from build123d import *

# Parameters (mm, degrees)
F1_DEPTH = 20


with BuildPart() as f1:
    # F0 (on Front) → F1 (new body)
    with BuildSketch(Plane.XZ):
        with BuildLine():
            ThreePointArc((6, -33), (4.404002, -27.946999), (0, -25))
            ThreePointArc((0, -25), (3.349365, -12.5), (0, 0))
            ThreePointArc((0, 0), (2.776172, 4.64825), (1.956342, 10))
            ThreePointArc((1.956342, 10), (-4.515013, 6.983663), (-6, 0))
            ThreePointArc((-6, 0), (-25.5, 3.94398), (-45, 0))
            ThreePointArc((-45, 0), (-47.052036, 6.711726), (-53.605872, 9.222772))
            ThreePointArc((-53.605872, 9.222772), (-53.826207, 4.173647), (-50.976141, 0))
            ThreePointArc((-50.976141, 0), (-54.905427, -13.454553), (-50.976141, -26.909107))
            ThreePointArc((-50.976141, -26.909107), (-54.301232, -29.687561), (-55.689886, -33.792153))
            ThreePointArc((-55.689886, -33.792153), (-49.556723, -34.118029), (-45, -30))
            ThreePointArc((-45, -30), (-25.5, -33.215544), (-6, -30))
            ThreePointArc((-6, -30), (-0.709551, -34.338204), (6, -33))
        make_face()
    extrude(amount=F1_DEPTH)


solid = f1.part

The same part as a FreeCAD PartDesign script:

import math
import FreeCAD as App
import Part
import Sketcher
Q = App.Units.Quantity

doc = App.newDocument("Part")
body = doc.addObject("PartDesign::Body", "Body")

# Sketch on XZ plane
sketch1 = body.newObject("Sketcher::SketchObject", "Sketch")
sketch1.AttachmentSupport = (doc.getObject("XZ_Plane"), [""])
sketch1.MapMode = "FlatFace"
sketch1.addGeometry([
    Part.ArcOfCircle(Part.Circle(App.Vector(-1.995998, -32.746998, 0), App.Vector(0, 0, 1), 7.999999), math.radians(-1.812294), math.radians(75.552089)),  # 0
    Part.ArcOfCircle(Part.Circle(App.Vector(-21.650634, -12.5, 0), App.Vector(0, 0, 1), 24.999999), math.radians(-30.000001), math.radians(30.000001)),  # 1
    Part.ArcOfCircle(Part.Circle(App.Vector(-5.074994, 6.184206, 0), App.Vector(0, 0, 1), 7.999998), math.radians(-50.626399), math.radians(28.487978)),  # 2
    Part.ArcOfCircle(Part.Circle(App.Vector(1.745248, 2.002785, 0), App.Vector(0, 0, 1), 8.000001), math.radians(88.487972), math.radians(194.498113)),  # 3
    Part.ArcOfCircle(Part.Circle(App.Vector(-25.5, -46.23439, 0), App.Vector(0, 0, 1), 50.17837), math.radians(67.131735), math.radians(112.868265)),  # 4
    Part.ArcOfCircle(Part.Circle(App.Vector(-52.901126, 1.253875, 0), App.Vector(0, 0, 1), 7.999999), math.radians(-9.017398), math.radians(95.053925)),  # 5
    Part.ArcOfCircle(Part.Circle(App.Vector(-46.13284, 6.367292, 0), App.Vector(0, 0, 1), 7.999998), math.radians(159.087911), math.radians(232.741453)),  # 6
    Part.ArcOfCircle(Part.Circle(App.Vector(-29.905427, -13.454553, 0), App.Vector(0, 0, 1), 25), math.radians(147.440025), math.radians(212.559975)),  # 7
    Part.ArcOfCircle(Part.Circle(App.Vector(-47.700693, -34.207836, 0), App.Vector(0, 0, 1), 8), math.radians(114.169097), math.radians(177.021552)),  # 8
    Part.ArcOfCircle(Part.Circle(App.Vector(-52.231354, -26.578379, 0), App.Vector(0, 0, 1), 7.999999), math.radians(-115.614662), math.radians(-25.321857)),  # 9
    Part.ArcOfCircle(Part.Circle(App.Vector(-25.5, 27.519082, 0), App.Vector(0, 0, 1), 60.734626), math.radians(-108.72758), math.radians(-71.27242)),  # 10
    Part.ArcOfCircle(Part.Circle(App.Vector(1.230734, -26.577063, 0), App.Vector(0, 0, 1), 8.000001), math.radians(-154.667726), math.radians(-53.404761)),  # 11
], False)
sketch1.addConstraint([
    Sketcher.Constraint("Coincident", 0, 2, 1, 1),
    Sketcher.Constraint("Coincident", 1, 2, 2, 1),
    Sketcher.Constraint("Coincident", 2, 2, 3, 1),
    Sketcher.Constraint("Coincident", 3, 2, 4, 1),
    Sketcher.Constraint("Coincident", 4, 2, 5, 1),
    Sketcher.Constraint("Coincident", 5, 2, 6, 1),
    Sketcher.Constraint("Coincident", 6, 2, 7, 1),
    Sketcher.Constraint("Coincident", 7, 2, 8, 1),
    Sketcher.Constraint("Coincident", 8, 2, 9, 1),
    Sketcher.Constraint("Coincident", 9, 2, 10, 1),
    Sketcher.Constraint("Coincident", 10, 2, 11, 1),
    Sketcher.Constraint("Coincident", 11, 2, 0, 1),
    Sketcher.Constraint("Coincident", 1, 2, -1, 1),
    Sketcher.Constraint("Equal", 0, 2),
    Sketcher.Constraint("Equal", 0, 3),
    Sketcher.Constraint("Equal", 3, 5),
    Sketcher.Constraint("Equal", 5, 6),
    Sketcher.Constraint("Equal", 1, 7),
    Sketcher.Constraint("Equal", 5, 8),
    Sketcher.Constraint("Equal", 8, 9),
    Sketcher.Constraint("Equal", 8, 11),
    Sketcher.Constraint("PointOnObject", 0, 2, -2),
    Sketcher.Constraint("PointOnObject", 3, 2, -1),
    Sketcher.Constraint("PointOnObject", 4, 2, -1),
    Sketcher.Constraint("PointOnObject", 6, 2, -1),
    Sketcher.Constraint("Horizontal", 9, 2, 10, 2),
    Sketcher.Constraint("Vertical", 4, 3, 10, 3),
    Sketcher.Constraint("Vertical", 6, 2, 7, 2),
    Sketcher.Constraint("Vertical", 4, 2, 9, 2),
    Sketcher.Constraint("Radius", 0, Q("7.999999 mm")),
    Sketcher.Constraint("Radius", 1, Q("24.999999 mm")),
    Sketcher.Constraint("DistanceY", 0, 2, -1, 1, Q("25 mm")),
    Sketcher.Constraint("DistanceY", -1, 1, 2, 2, Q("10 mm")),
    Sketcher.Constraint("DistanceX", 3, 2, -1, 1, Q("6 mm")),
    Sketcher.Constraint("DistanceX", 4, 2, -1, 1, Q("45 mm")),
    Sketcher.Constraint("DistanceY", 9, 2, -1, 1, Q("30 mm")),
    Sketcher.Constraint("DistanceX", -1, 1, 11, 2, Q("6 mm")),
    Sketcher.Constraint("DistanceY", 11, 2, -1, 1, Q("33 mm")),
    Sketcher.Constraint("Radius", 4, Q("50.17837 mm")),
    Sketcher.Constraint("Radius", 10, Q("60.734626 mm")),
    Sketcher.Constraint("DistanceX", 5, 3, 7, 3, Q("22.995698 mm")),
    Sketcher.Constraint("DistanceX", 6, 2, 6, 3, Q("4.843301 mm")),
    Sketcher.Constraint("DistanceY", 8, 2, 7, 3, Q("20.337599 mm")),
    Sketcher.Constraint("DistanceX", 6, 3, -1, 1, Q("46.13284 mm")),
    Sketcher.Constraint("DistanceY", 9, 3, -1, 1, Q("26.578379 mm")),
    Sketcher.Constraint("DistanceX", -1, 1, 2, 2, Q("1.956342 mm")),
    Sketcher.Constraint("DistanceX", 5, 3, 1, 3, Q("31.250491 mm")),
])
pad1 = body.newObject("PartDesign::Pad", "Pad")
pad1.Profile = sketch1
pad1.Length = 20

doc.recompute()
